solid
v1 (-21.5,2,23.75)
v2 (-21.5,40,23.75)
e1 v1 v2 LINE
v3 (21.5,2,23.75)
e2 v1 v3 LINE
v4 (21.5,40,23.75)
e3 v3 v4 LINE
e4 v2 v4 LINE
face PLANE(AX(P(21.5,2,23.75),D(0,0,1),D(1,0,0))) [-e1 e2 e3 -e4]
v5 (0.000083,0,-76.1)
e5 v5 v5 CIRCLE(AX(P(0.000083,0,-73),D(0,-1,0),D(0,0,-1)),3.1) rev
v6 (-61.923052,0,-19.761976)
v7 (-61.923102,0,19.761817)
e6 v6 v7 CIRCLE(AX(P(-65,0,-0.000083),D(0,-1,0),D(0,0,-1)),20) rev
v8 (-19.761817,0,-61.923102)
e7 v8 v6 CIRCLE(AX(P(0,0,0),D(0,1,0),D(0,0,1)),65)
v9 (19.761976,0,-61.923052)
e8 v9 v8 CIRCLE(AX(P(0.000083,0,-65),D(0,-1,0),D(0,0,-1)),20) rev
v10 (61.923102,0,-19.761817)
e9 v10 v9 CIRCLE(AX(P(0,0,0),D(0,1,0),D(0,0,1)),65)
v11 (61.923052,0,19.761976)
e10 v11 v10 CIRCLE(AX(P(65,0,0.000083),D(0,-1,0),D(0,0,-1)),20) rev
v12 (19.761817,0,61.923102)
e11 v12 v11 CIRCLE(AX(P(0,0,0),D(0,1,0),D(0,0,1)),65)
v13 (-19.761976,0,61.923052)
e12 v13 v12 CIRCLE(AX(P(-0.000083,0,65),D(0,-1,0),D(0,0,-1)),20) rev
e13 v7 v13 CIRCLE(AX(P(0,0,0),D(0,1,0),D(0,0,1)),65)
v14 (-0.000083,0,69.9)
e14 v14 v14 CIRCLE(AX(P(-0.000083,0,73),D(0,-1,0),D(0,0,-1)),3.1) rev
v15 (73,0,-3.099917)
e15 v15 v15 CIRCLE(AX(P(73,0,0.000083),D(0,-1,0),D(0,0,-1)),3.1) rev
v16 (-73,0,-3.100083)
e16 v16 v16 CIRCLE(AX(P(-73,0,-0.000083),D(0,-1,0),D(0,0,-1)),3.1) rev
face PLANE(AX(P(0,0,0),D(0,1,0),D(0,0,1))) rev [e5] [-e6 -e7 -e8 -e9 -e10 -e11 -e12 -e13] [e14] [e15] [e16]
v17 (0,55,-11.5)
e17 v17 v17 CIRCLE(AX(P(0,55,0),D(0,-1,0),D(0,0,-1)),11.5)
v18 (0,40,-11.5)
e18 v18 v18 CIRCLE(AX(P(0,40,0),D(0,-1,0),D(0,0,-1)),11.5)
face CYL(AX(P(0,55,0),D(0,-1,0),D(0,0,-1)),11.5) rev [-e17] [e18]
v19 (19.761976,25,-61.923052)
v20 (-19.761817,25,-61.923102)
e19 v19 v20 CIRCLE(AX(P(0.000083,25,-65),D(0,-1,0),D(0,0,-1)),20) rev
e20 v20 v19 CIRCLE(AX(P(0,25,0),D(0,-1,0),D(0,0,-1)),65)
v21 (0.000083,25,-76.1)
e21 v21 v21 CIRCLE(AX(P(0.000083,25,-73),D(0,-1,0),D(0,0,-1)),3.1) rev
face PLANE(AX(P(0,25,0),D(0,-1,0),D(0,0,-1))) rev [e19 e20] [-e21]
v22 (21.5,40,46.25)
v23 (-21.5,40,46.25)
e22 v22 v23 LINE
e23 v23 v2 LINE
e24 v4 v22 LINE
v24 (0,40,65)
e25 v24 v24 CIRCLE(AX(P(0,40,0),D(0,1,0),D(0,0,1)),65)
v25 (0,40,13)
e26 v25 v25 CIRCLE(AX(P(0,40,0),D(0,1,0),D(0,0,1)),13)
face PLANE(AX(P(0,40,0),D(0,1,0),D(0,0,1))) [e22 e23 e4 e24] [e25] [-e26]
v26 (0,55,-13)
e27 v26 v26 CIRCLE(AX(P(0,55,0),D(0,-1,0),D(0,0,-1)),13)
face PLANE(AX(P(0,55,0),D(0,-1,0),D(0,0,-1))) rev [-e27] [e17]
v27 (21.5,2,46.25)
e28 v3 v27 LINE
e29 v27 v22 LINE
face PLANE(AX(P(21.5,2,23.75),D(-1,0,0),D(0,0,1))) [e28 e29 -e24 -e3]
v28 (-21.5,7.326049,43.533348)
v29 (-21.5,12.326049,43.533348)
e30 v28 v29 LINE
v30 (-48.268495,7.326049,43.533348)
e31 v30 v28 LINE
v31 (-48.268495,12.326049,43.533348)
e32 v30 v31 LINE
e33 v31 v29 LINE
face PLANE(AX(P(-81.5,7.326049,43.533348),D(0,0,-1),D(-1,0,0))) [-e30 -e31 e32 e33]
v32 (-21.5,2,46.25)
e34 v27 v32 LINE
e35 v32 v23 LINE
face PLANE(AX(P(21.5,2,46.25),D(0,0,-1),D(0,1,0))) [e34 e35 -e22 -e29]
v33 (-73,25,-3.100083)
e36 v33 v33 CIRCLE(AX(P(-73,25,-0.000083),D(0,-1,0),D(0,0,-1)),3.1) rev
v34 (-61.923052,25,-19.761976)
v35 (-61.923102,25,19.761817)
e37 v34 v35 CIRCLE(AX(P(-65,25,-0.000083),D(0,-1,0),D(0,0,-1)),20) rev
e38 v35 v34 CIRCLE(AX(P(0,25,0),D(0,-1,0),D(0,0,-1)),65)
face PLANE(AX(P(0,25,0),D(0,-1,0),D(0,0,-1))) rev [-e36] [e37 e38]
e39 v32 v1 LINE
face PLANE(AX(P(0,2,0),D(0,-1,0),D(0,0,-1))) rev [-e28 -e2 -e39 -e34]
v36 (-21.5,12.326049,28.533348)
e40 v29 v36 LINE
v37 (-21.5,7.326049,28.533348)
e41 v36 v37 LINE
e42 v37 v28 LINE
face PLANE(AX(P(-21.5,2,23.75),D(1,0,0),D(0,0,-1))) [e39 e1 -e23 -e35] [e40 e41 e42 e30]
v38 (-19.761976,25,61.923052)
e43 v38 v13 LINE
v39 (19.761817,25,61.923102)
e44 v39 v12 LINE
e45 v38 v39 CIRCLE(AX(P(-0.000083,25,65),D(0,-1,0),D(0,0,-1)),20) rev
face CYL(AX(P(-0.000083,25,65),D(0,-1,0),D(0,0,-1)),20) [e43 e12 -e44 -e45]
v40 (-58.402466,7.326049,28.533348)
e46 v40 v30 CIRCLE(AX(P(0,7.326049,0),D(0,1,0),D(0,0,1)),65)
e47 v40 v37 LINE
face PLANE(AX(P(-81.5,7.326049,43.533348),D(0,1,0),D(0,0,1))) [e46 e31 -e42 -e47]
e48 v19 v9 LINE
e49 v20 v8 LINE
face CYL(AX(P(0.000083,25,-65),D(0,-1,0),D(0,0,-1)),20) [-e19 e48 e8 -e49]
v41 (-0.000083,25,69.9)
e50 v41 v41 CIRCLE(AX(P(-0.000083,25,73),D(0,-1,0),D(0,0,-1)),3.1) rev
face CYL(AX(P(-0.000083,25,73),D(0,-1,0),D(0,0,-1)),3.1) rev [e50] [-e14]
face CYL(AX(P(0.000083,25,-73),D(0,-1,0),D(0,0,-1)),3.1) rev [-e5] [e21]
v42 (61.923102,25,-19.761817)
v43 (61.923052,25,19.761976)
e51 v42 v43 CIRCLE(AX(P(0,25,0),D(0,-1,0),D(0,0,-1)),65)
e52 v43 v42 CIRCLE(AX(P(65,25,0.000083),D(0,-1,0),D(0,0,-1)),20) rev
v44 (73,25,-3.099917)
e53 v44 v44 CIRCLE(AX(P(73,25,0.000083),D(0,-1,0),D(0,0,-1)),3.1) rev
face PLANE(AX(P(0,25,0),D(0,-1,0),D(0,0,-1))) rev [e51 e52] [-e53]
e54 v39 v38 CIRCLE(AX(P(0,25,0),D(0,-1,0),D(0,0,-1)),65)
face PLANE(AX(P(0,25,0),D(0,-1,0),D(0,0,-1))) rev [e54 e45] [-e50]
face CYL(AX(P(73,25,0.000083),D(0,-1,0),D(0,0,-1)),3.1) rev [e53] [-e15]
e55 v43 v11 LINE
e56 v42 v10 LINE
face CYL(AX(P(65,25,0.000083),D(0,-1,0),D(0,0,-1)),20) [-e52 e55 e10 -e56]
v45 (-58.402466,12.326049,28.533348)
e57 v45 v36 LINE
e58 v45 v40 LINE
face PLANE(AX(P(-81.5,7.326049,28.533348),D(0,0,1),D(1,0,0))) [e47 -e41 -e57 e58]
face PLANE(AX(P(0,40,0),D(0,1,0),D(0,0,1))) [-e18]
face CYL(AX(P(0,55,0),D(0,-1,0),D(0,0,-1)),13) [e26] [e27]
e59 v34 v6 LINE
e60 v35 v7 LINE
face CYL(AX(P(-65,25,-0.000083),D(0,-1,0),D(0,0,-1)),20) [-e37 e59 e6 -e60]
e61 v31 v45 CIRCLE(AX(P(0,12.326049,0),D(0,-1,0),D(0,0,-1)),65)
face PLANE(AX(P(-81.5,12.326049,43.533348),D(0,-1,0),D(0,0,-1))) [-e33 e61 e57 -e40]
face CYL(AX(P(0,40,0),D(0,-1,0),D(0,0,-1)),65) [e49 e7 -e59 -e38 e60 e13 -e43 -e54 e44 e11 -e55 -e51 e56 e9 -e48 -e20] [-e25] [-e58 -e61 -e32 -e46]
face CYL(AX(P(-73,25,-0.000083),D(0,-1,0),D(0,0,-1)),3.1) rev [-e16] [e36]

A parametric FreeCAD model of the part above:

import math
import FreeCAD as App
import Part
import Sketcher

V = App.Vector


def add_polygon(sketch, points):
    """Adds a closed chain of lines whose ends are joined by coincident constraints."""
    first, n = sketch.GeometryCount, len(points)
    for a, b in zip(points, points[1:] + points[:1]):
        sketch.addGeometry(Part.LineSegment(App.Vector(*a, 0), App.Vector(*b, 0)), False)
    for i in range(n):
        sketch.addConstraint(Sketcher.Constraint("Coincident", first + i, 2, first + (i + 1) % n, 1))

doc = App.newDocument("Part")
body = doc.addObject("PartDesign::Body", "Body")

sketch1 = doc.addObject("Sketcher::SketchObject", "Sketch")
body.addObject(sketch1)
sketch1.AttachmentSupport = (doc.XZ_Plane, [""])
sketch1.MapMode = "FlatFace"
sketch1.addGeometry(Part.Circle(V(0, 0, 0), V(0, 0, 1), 65), False)
sketch1.addConstraint([
    Sketcher.Constraint("Coincident", 0, 3, -1, 1),
    Sketcher.Constraint("Diameter", 0, 130.0),
])
pad1 = doc.addObject("PartDesign::Pad", "Pad")
body.addObject(pad1)
pad1.Profile = sketch1
pad1.Length = 40
pad1.Reversed = True

sketch2 = doc.addObject("Sketcher::SketchObject", "Sketch001")
body.addObject(sketch2)
sketch2.AttachmentSupport = (doc.XZ_Plane, [""])
sketch2.MapMode = "FlatFace"
sketch2.AttachmentOffset = App.Placement(V(0, 0, -40), App.Rotation())
add_polygon(sketch2, [(-22, 46), (-22, 24), (22, 24), (22, 46)])
sketch2.addConstraint([
    Sketcher.Constraint("Vertical", 0),
    Sketcher.Constraint("Horizontal", 1),
    Sketcher.Constraint("Vertical", 2),
    Sketcher.Constraint("Horizontal", 3),
    Sketcher.Constraint("DistanceX", 1, 1, 1, 2, 43.0),
    Sketcher.Constraint("DistanceY", 0, 2, 0, 1, 22.5),
    Sketcher.Constraint("DistanceX", 0, 2, -1, 1, 21.5),
    Sketcher.Constraint("DistanceY", -1, 1, 0, 2, 23.75),
])
pocket1 = doc.addObject("PartDesign::Pocket", "Pocket")
body.addObject(pocket1)
pocket1.Profile = sketch2
pocket1.Length = 38
pocket1.Reversed = True

sketch3 = doc.addObject("Sketcher::SketchObject", "Sketch002")
body.addObject(sketch3)
sketch3.AttachmentSupport = (doc.XZ_Plane, [""])
sketch3.MapMode = "FlatFace"
sketch3.addGeometry([
    Part.ArcOfCircle(Part.Circle(V(0, 0, 0), V(0, 0, 1), 65), math.radians(162), math.radians(198)),
    Part.ArcOfCircle(Part.Circle(V(-65, 0, 0), V(0, 0, 1), 20), math.radians(81), math.radians(279)),
    Part.Circle(V(-73, 0, 0), V(0, 0, 1), 3.1),
    Part.ArcOfCircle(Part.Circle(V(0, -65, 0), V(0, 0, 1), 20), math.radians(171), math.radians(369)),
    Part.ArcOfCircle(Part.Circle(V(0, 0, 0), V(0, 0, 1), 65), math.radians(-108), math.radians(-72)),
    Part.Circle(V(0, -73, 0), V(0, 0, 1), 3.1),
    Part.ArcOfCircle(Part.Circle(V(0, 0, 0), V(0, 0, 1), 65), math.radians(72), math.radians(108)),
    Part.ArcOfCircle(Part.Circle(V(0, 65, 0), V(0, 0, 1), 20), math.radians(-9), math.radians(189)),
    Part.Circle(V(0, 73, 0), V(0, 0, 1), 3.1),
    Part.ArcOfCircle(Part.Circle(V(65, 0, 0), V(0, 0, 1), 20), math.radians(-99), math.radians(99)),
    Part.ArcOfCircle(Part.Circle(V(0, 0, 0), V(0, 0, 1), 65), math.radians(-18), math.radians(18)),
    Part.Circle(V(73, 0, 0), V(0, 0, 1), 3.1),
], False)
sketch3.addConstraint([
    Sketcher.Constraint("Coincident", 0, 1, 1, 1),
    Sketcher.Constraint("Coincident", 1, 2, 0, 2),
    Sketcher.Constraint("Coincident", 3, 1, 4, 1),
    Sketcher.Constraint("Coincident", 4, 2, 3, 2),
    Sketcher.Constraint("Coincident", 6, 1, 7, 1),
    Sketcher.Constraint("Coincident", 7, 2, 6, 2),
    Sketcher.Constraint("Coincident", 9, 1, 10, 1),
    Sketcher.Constraint("Coincident", 10, 2, 9, 2),
    Sketcher.Constraint("Coincident", 0, 3, -1, 1),
    Sketcher.Constraint("Coincident", 4, 3, -1, 1),
    Sketcher.Constraint("Coincident", 6, 3, -1, 1),
    Sketcher.Constraint("Coincident", 10, 3, -1, 1),
    Sketcher.Constraint("Equal", 1, 3),
    Sketcher.Constraint("Equal", 0, 4),
    Sketcher.Constraint("Equal", 2, 5),
    Sketcher.Constraint("Equal", 4, 6),
    Sketcher.Constraint("Equal", 3, 7),
    Sketcher.Constraint("Equal", 5, 8),
    Sketcher.Constraint("Equal", 7, 9),
    Sketcher.Constraint("Equal", 6, 10),
    Sketcher.Constraint("Equal", 8, 11),
    Sketcher.Constraint("Symmetric", 3, 3, 7, 3, -1, 1),
    Sketcher.Constraint("Symmetric", 5, 3, 8, 3, -1, 1),
    Sketcher.Constraint("Symmetric", 1, 3, 9, 3, -1, 1),
    Sketcher.Constraint("Symmetric", 2, 3, 11, 3, -1, 1),
    Sketcher.Constraint("Horizontal", 1, 3, 2, 3),
    Sketcher.Constraint("Vertical", 3, 3, 5, 3),
    Sketcher.Constraint("Radius", 0, 65.0),
    Sketcher.Constraint("Radius", 1, 20.0),
    Sketcher.Constraint("Diameter", 2, 6.2),
    Sketcher.Constraint("DistanceX", 1, 3, -1, 1, 65.0),
    Sketcher.Constraint("DistanceX", 2, 3, -1, 1, 73.0),
    Sketcher.Constraint("DistanceY", 3, 3, -1, 1, 65.0),
    Sketcher.Constraint("DistanceY", 5, 3, -1, 1, 73.0),
    Sketcher.Constraint("DistanceX", 3, 1, 3, 3, 19.7619),
    Sketcher.Constraint("DistanceY", 9, 1, 9, 3, 19.7619),
])
pad2 = doc.addObject("PartDesign::Pad", "Pad001")
body.addObject(pad2)
pad2.Profile = sketch3
pad2.Length = 25
pad2.Reversed = True

sketch4 = doc.addObject("Sketcher::SketchObject", "Sketch003")
body.addObject(sketch4)
sketch4.AttachmentSupport = (doc.XZ_Plane, [""])
sketch4.MapMode = "FlatFace"
sketch4.AttachmentOffset = App.Placement(V(0, 0, -40), App.Rotation())
sketch4.addGeometry([
    Part.Circle(V(0, 0, 0), V(0, 0, 1), 13),
    Part.Circle(V(0, 0, 0), V(0, 0, 1), 12),
], False)
sketch4.addConstraint([
    Sketcher.Constraint("Coincident", 0, 3, -1, 1),
    Sketcher.Constraint("Coincident", 1, 3, -1, 1),
    Sketcher.Constraint("Diameter", 0, 26.0),
    Sketcher.Constraint("Diameter", 1, 23.0),
])
pad3 = doc.addObject("PartDesign::Pad", "Pad002")
body.addObject(pad3)
pad3.Profile = sketch4
pad3.Length = 15
pad3.Reversed = True

sketch5 = doc.addObject("Sketcher::SketchObject", "Sketch004")
body.addObject(sketch5)
sketch5.AttachmentSupport = (doc.YZ_Plane, [""])
sketch5.MapMode = "FlatFace"
sketch5.AttachmentOffset = App.Placement(V(0, 0, -21.5), App.Rotation())
add_polygon(sketch5, [(12, 29), (7, 29), (7, 44), (12, 44)])
sketch5.addConstraint([
    Sketcher.Constraint("Horizontal", 0),
    Sketcher.Constraint("Vertical", 1),
    Sketcher.Constraint("Horizontal", 2),
    Sketcher.Constraint("Vertical", 3),
    Sketcher.Constraint("DistanceX", 0, 2, 0, 1, 5.0),
    Sketcher.Constraint("DistanceY", 1, 1, 1, 2, 15.0),
    Sketcher.Constraint("DistanceX", -1, 1, 0, 2, 7.326049),
    Sketcher.Constraint("DistanceY", -1, 1, 0, 2, 28.533348),
])
pocket2 = doc.addObject("PartDesign::Pocket", "Pocket001")
body.addObject(pocket2)
pocket2.Profile = sketch5
pocket2.Length = 60

doc.recompute()
